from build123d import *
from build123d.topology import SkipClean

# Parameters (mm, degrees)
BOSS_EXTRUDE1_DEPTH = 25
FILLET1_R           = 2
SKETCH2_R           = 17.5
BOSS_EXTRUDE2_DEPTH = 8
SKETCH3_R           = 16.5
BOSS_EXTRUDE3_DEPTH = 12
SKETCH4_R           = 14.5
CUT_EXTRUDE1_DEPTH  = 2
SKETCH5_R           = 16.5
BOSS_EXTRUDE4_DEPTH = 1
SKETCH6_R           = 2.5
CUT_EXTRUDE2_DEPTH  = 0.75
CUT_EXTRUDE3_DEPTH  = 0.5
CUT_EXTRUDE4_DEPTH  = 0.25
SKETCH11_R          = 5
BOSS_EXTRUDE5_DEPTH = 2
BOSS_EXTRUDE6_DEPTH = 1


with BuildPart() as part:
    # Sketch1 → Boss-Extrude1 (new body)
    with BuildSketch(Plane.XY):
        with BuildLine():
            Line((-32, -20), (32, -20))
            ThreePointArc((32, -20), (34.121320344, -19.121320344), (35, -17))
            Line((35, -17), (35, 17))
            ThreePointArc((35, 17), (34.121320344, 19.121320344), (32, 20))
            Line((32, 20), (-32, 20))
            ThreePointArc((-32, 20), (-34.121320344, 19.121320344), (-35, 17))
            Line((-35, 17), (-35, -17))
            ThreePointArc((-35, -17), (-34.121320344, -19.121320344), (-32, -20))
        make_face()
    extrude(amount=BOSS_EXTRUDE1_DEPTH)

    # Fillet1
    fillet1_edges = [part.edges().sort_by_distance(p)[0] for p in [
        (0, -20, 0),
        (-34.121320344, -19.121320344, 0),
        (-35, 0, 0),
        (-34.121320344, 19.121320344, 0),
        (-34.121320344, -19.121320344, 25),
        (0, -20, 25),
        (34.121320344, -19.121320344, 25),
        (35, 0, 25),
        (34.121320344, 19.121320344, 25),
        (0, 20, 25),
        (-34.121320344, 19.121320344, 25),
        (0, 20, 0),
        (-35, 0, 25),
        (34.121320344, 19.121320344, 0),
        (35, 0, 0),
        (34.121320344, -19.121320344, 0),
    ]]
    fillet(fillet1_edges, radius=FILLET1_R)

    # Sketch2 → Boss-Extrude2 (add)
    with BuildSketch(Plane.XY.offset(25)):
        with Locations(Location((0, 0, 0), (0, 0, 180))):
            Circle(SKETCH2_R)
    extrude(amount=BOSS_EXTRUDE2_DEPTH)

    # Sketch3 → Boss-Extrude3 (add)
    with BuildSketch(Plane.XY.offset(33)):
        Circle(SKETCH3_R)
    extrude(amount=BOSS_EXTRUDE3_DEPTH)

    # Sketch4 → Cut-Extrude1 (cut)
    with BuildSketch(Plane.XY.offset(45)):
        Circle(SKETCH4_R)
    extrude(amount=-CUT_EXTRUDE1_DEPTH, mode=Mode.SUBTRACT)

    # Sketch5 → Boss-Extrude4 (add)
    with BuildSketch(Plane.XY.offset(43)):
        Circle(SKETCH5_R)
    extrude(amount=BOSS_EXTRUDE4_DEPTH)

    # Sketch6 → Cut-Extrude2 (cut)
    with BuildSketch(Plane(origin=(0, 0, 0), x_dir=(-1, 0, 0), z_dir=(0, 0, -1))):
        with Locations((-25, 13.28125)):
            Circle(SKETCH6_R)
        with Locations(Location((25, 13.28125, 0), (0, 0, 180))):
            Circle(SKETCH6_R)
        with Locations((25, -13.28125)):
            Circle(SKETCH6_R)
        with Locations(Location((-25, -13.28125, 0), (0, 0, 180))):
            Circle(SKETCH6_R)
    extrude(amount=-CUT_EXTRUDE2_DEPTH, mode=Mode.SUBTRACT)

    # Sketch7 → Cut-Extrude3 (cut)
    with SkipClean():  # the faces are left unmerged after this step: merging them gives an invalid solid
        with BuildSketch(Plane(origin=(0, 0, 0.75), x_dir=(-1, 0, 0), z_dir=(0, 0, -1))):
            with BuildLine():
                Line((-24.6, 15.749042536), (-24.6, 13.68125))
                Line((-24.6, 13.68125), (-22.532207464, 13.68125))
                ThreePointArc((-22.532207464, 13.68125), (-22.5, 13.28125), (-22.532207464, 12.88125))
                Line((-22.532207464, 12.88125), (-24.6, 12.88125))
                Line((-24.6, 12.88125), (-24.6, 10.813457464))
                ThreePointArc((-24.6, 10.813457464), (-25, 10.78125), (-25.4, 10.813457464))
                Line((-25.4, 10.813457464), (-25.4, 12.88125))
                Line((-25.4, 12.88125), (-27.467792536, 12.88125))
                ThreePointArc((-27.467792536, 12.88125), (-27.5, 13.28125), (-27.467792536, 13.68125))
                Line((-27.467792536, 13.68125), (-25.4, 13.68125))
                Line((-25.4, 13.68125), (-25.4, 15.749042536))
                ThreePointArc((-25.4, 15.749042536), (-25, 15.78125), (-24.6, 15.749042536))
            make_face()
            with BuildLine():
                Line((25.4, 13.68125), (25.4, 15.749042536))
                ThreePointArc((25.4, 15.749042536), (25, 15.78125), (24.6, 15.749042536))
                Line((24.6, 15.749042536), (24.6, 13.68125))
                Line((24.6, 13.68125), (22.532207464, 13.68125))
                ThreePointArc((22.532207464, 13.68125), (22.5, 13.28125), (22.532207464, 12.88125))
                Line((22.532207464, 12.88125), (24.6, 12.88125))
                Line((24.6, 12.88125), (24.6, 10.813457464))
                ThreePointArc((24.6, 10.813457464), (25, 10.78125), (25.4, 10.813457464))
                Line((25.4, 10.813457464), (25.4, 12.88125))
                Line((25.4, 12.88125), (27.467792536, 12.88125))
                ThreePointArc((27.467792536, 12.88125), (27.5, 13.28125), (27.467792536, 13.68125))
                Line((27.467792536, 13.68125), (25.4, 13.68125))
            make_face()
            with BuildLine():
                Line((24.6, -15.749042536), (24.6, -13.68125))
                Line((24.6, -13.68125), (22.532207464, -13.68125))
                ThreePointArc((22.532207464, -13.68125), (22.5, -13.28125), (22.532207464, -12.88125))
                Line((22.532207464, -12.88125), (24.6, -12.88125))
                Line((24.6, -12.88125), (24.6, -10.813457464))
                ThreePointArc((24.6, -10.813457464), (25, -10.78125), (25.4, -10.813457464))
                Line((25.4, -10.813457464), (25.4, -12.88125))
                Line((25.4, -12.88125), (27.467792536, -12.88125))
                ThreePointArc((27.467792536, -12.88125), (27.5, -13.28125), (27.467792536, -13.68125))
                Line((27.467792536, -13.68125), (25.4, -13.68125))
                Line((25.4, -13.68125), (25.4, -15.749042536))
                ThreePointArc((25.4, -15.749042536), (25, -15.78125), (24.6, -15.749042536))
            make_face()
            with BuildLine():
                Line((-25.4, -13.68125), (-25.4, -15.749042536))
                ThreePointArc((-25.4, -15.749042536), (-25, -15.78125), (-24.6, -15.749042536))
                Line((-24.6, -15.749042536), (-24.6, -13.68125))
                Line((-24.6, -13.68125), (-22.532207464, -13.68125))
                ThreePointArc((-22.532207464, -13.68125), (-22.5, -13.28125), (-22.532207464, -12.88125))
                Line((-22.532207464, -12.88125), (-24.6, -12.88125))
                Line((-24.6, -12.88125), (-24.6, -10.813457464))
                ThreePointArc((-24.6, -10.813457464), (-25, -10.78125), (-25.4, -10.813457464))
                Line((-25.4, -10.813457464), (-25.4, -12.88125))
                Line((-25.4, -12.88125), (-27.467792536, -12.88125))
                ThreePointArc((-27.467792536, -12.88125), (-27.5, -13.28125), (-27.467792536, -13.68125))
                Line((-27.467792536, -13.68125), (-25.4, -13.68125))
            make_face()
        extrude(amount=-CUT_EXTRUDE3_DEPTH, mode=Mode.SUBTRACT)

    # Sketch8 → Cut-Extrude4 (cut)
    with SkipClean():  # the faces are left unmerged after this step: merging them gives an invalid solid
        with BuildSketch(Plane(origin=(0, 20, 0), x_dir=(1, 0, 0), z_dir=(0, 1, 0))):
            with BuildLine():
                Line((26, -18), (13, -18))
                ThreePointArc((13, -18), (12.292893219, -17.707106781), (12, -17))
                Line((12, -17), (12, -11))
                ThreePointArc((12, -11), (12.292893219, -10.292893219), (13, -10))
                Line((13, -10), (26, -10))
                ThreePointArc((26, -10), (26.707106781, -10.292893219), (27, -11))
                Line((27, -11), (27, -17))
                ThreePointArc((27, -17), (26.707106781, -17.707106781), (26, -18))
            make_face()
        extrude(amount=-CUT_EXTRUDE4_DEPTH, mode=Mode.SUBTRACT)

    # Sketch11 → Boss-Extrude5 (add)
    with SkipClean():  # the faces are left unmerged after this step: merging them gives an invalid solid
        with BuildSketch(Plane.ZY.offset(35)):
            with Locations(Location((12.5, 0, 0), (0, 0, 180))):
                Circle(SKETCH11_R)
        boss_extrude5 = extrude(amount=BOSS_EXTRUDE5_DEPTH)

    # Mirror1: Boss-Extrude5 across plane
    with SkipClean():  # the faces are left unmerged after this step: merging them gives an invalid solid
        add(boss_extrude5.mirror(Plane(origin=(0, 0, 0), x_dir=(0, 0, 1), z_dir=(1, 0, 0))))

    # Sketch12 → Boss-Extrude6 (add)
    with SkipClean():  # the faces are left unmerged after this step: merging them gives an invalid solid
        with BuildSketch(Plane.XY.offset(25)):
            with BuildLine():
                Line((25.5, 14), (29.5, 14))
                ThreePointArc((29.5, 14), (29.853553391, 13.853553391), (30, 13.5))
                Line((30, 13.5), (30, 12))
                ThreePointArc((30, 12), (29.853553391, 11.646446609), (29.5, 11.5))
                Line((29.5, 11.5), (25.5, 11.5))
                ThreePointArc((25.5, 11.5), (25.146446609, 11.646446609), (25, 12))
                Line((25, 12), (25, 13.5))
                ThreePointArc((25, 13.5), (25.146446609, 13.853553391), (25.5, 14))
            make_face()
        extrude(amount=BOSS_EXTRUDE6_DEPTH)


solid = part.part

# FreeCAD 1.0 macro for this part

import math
import FreeCAD as App
import Part
import Sketcher

V = App.Vector
Q = App.Units.Quantity


def edges_at(feature, points):
    """Names of the edges that pass closest to the given points."""
    edges = feature.Shape.Edges
    near = lambda p: min(range(len(edges)), key=lambda i: edges[i].distToShape(Part.Vertex(*p))[0])
    return sorted({f"Edge{near(p) + 1}" for p in points})

doc = App.newDocument("Part")
body = doc.addObject("PartDesign::Body", "Body")

sketch1 = doc.addObject("Sketcher::SketchObject", "Sketch")
body.addObject(sketch1)
sketch1.AttachmentSupport = (doc.XY_Plane, [""])
sketch1.MapMode = "FlatFace"
sketch1.addGeometry(Part.LineSegment(V(-32, -20, 0), V(32, -20, 0)), False)
sketch1.addGeometry(Part.ArcOfCircle(Part.Circle(V(32, -17, 0), V(0, 0, 1), 3), math.radians(-90), math.radians(0)), False)
sketch1.addGeometry(Part.LineSegment(V(35, -17, 0), V(35, 17, 0)), False)
sketch1.addGeometry(Part.ArcOfCircle(Part.Circle(V(32, 17, 0), V(0, 0, 1), 3), math.radians(0), math.radians(90)), False)
sketch1.addGeometry(Part.LineSegment(V(32, 20, 0), V(-32, 20, 0)), False)
sketch1.addGeometry(Part.ArcOfCircle(Part.Circle(V(-32, 17, 0), V(0, 0, 1), 3), math.radians(90), math.radians(180)), False)
sketch1.addGeometry(Part.LineSegment(V(-35, 17, 0), V(-35, -17, 0)), False)
sketch1.addGeometry(Part.ArcOfCircle(Part.Circle(V(-32, -17, 0), V(0, 0, 1), 3), math.radians(180), math.radians(270)), False)
sketch1.addConstraint(Sketcher.Constraint("Tangent", 0, 2, 1, 1))
sketch1.addConstraint(Sketcher.Constraint("Tangent", 1, 2, 2, 1))
sketch1.addConstraint(Sketcher.Constraint("Tangent", 2, 2, 3, 1))
sketch1.addConstraint(Sketcher.Constraint("Tangent", 3, 2, 4, 1))
sketch1.addConstraint(Sketcher.Constraint("Tangent", 4, 2, 5, 1))
sketch1.addConstraint(Sketcher.Constraint("Tangent", 5, 2, 6, 1))
sketch1.addConstraint(Sketcher.Constraint("Tangent", 6, 2, 7, 1))
sketch1.addConstraint(Sketcher.Constraint("Tangent", 7, 2, 0, 1))
sketch1.addConstraint(Sketcher.Constraint("Horizontal", 0))
sketch1.addConstraint(Sketcher.Constraint("Vertical", 2))
sketch1.addConstraint(Sketcher.Constraint("Horizontal", 4))
sketch1.addConstraint(Sketcher.Constraint("Vertical", 6))
sketch1.addConstraint(Sketcher.Constraint("Equal", 1, 3))
sketch1.addConstraint(Sketcher.Constraint("Equal", 3, 5))
sketch1.addConstraint(Sketcher.Constraint("Equal", 5, 7))
sketch1.addConstraint(Sketcher.Constraint("Symmetric", 1, 3, 5, 3, -1, 1))
sketch1.addConstraint(Sketcher.Constraint("Radius", 1, Q("3 mm")))
sketch1.addConstraint(Sketcher.Constraint("DistanceX", 0, 1, 0, 2, Q("64 mm")))
sketch1.addConstraint(Sketcher.Constraint("DistanceY", 2, 1, 2, 2, Q("34 mm")))
pad1 = doc.addObject("PartDesign::Pad", "Pad")
body.addObject(pad1)
pad1.Profile = sketch1
pad1.Length = 25
doc.recompute()

fillet = doc.addObject("PartDesign::Fillet", "Fillet")
body.addObject(fillet)
fillet.Base = (pad1, edges_at(pad1, [
    (0, -20, 0),
    (-34.121, -19.121, 0),
    (-35, 0, 0),
    (-34.121, 19.121, 0),
    (-34.121, -19.121, 25),
    (0, -20, 25),
    (34.121, -19.121, 25),
    (35, 0, 25),
    (34.121, 19.121, 25),
    (0, 20, 25),
    (-34.121, 19.121, 25),
    (0, 20, 0),
    (-35, 0, 25),
    (34.121, 19.121, 0),
    (35, 0, 0),
    (34.121, -19.121, 0),
]))
fillet.Radius = 2

sketch2 = doc.addObject("Sketcher::SketchObject", "Sketch001")
body.addObject(sketch2)
sketch2.AttachmentSupport = (doc.XY_Plane, [""])
sketch2.MapMode = "FlatFace"
sketch2.AttachmentOffset = App.Placement(V(0, 0, 25), App.Rotation())
sketch2.addGeometry(Part.Circle(V(0, 0, 0), V(0, 0, 1), 18), False)
sketch2.addConstraint(Sketcher.Constraint("Coincident", 0, 3, -1, 1))
sketch2.addConstraint(Sketcher.Constraint("Diameter", 0, Q("35 mm")))
pad2 = doc.addObject("PartDesign::Pad", "Pad001")
body.addObject(pad2)
pad2.Profile = sketch2
pad2.Length = 8

sketch3 = doc.addObject("Sketcher::SketchObject", "Sketch002")
body.addObject(sketch3)
sketch3.AttachmentSupport = (doc.XY_Plane, [""])
sketch3.MapMode = "FlatFace"
sketch3.AttachmentOffset = App.Placement(V(0, 0, 33), App.Rotation())
sketch3.addGeometry(Part.Circle(V(0, 0, 0), V(0, 0, 1), 16), False)
sketch3.addConstraint(Sketcher.Constraint("Coincident", 0, 3, -1, 1))
sketch3.addConstraint(Sketcher.Constraint("Diameter", 0, Q("33 mm")))
pad3 = doc.addObject("PartDesign::Pad", "Pad002")
body.addObject(pad3)
pad3.Profile = sketch3
pad3.Length = 12

sketch4 = doc.addObject("Sketcher::SketchObject", "Sketch003")
body.addObject(sketch4)
sketch4.AttachmentSupport = (doc.XY_Plane, [""])
sketch4.MapMode = "FlatFace"
sketch4.AttachmentOffset = App.Placement(V(0, 0, 45), App.Rotation())
sketch4.addGeometry(Part.Circle(V(0, 0, 0), V(0, 0, 1), 14), False)
sketch4.addConstraint(Sketcher.Constraint("Coincident", 0, 3, -1, 1))
sketch4.addConstraint(Sketcher.Constraint("Diameter", 0, Q("29 mm")))
pocket1 = doc.addObject("PartDesign::Pocket", "Pocket")
body.addObject(pocket1)
pocket1.Profile = sketch4
pocket1.Length = 2

sketch5 = doc.addObject("Sketcher::SketchObject", "Sketch004")
body.addObject(sketch5)
sketch5.AttachmentSupport = (doc.XY_Plane, [""])
sketch5.MapMode = "FlatFace"
sketch5.AttachmentOffset = App.Placement(V(0, 0, 43), App.Rotation())
sketch5.addGeometry(Part.Circle(V(0, 0, 0), V(0, 0, 1), 16), False)
sketch5.addConstraint(Sketcher.Constraint("Coincident", 0, 3, -1, 1))
sketch5.addConstraint(Sketcher.Constraint("Diameter", 0, Q("33 mm")))
pad4 = doc.addObject("PartDesign::Pad", "Pad003")
body.addObject(pad4)
pad4.Profile = sketch5
pad4.Length = 1

sketch6 = doc.addObject("Sketcher::SketchObject", "Sketch005")
body.addObject(sketch6)
sketch6.AttachmentSupport = (doc.XY_Plane, [""])
sketch6.MapMode = "FlatFace"
sketch6.addGeometry(Part.Circle(V(25, 13.3, 0), V(0, 0, 1), 2.5), False)
sketch6.addGeometry(Part.Circle(V(-25, 13.3, 0), V(0, 0, 1), 2.5), False)
sketch6.addGeometry(Part.Circle(V(-25, -13.3, 0), V(0, 0, 1), 2.5), False)
sketch6.addGeometry(Part.Circle(V(25, -13.3, 0), V(0, 0, 1), 2.5), False)
sketch6.addConstraint(Sketcher.Constraint("Equal", 0, 1))
sketch6.addConstraint(Sketcher.Constraint("Equal", 1, 2))
sketch6.addConstraint(Sketcher.Constraint("Equal", 2, 3))
sketch6.addConstraint(Sketcher.Constraint("Symmetric", 0, 3, 2, 3, -1, 1))
sketch6.addConstraint(Sketcher.Constraint("Symmetric", 1, 3, 3, 3, -1, 1))
sketch6.addConstraint(Sketcher.Constraint("Symmetric", 0, 3, 1, 3, -2))
sketch6.addConstraint(Sketcher.Constraint("Diameter", 0, Q("5 mm")))
sketch6.addConstraint(Sketcher.Constraint("DistanceX", -1, 1, 0, 3, Q("25 mm")))
sketch6.addConstraint(Sketcher.Constraint("DistanceY", 2, 3, 1, 3, Q("26.5625 mm")))
pocket2 = doc.addObject("PartDesign::Pocket", "Pocket001")
body.addObject(pocket2)
pocket2.Profile = sketch6
pocket2.Length = 0.75
pocket2.Reversed = True

sketch7 = doc.addObject("Sketcher::SketchObject", "Sketch006")
body.addObject(sketch7)
sketch7.AttachmentSupport = (doc.XY_Plane, [""])
sketch7.MapMode = "FlatFace"
sketch7.AttachmentOffset = App.Placement(V(0, 0, 0.75), App.Rotation())
sketch7.addGeometry(Part.LineSegment(V(24.6, 13.7, 0), V(24.6, 15.7, 0)), False)
sketch7.addGeometry(Part.ArcOfCircle(Part.Circle(V(25, 13.3, 0), V(0, 0, 1), 2.5), math.radians(80.79), math.radians(99.21)), False)
sketch7.addGeometry(Part.LineSegment(V(25.4, 15.7, 0), V(25.4, 13.7, 0)), False)
sketch7.addGeometry(Part.LineSegment(V(25.4, 13.7, 0), V(27.5, 13.7, 0)), False)
sketch7.addGeometry(Part.ArcOfCircle(Part.Circle(V(25, 13.3, 0), V(0, 0, 1), 2.5), math.radians(-9.21), math.radians(9.21)), False)
sketch7.addGeometry(Part.LineSegment(V(27.5, 12.9, 0), V(25.4, 12.9, 0)), False)
sketch7.addGeometry(Part.LineSegment(V(25.4, 12.9, 0), V(25.4, 10.8, 0)), False)
sketch7.addGeometry(Part.ArcOfCircle(Part.Circle(V(25, 13.3, 0), V(0, 0, 1), 2.5), math.radians(-99.21), math.radians(-80.79)), False)
sketch7.addGeometry(Part.LineSegment(V(24.6, 10.8, 0), V(24.6, 12.9, 0)), False)
sketch7.addGeometry(Part.LineSegment(V(24.6, 12.9, 0), V(22.5, 12.9, 0)), False)
sketch7.addGeometry(Part.ArcOfCircle(Part.Circle(V(25, 13.3, 0), V(0, 0, 1), 2.5), math.radians(170.79), math.radians(189.21)), False)
sketch7.addGeometry(Part.LineSegment(V(22.5, 13.7, 0), V(24.6, 13.7, 0)), False)
sketch7.addGeometry(Part.LineSegment(V(-25.4, 13.7, 0), V(-25.4, 15.7, 0)), False)
sketch7.addGeometry(Part.ArcOfCircle(Part.Circle(V(-25, 13.3, 0), V(0, 0, 1), 2.5), math.radians(80.79), math.radians(99.21)), False)
sketch7.addGeometry(Part.LineSegment(V(-24.6, 15.7, 0), V(-24.6, 13.7, 0)), False)
sketch7.addGeometry(Part.LineSegment(V(-24.6, 13.7, 0), V(-22.5, 13.7, 0)), False)
sketch7.addGeometry(Part.ArcOfCircle(Part.Circle(V(-25, 13.3, 0), V(0, 0, 1), 2.5), math.radians(-9.21), math.radians(9.21)), False)
sketch7.addGeometry(Part.LineSegment(V(-22.5, 12.9, 0), V(-24.6, 12.9, 0)), False)
sketch7.addGeometry(Part.LineSegment(V(-24.6, 12.9, 0), V(-24.6, 10.8, 0)), False)
sketch7.addGeometry(Part.ArcOfCircle(Part.Circle(V(-25, 13.3, 0), V(0, 0, 1), 2.5), math.radians(-99.21), math.radians(-80.79)), False)
sketch7.addGeometry(Part.LineSegment(V(-25.4, 10.8, 0), V(-25.4, 12.9, 0)), False)
sketch7.addGeometry(Part.LineSegment(V(-25.4, 12.9, 0), V(-27.5, 12.9, 0)), False)
sketch7.addGeometry(Part.ArcOfCircle(Part.Circle(V(-25, 13.3, 0), V(0, 0, 1), 2.5), math.radians(170.79), math.radians(189.21)), False)
sketch7.addGeometry(Part.LineSegment(V(-27.5, 13.7, 0), V(-25.4, 13.7, 0)), False)
sketch7.addGeometry(Part.LineSegment(V(-24.6, -13.7, 0), V(-24.6, -15.7, 0)), False)
sketch7.addGeometry(Part.ArcOfCircle(Part.Circle(V(-25, -13.3, 0), V(0, 0, 1), 2.5), math.radians(-99.21), math.radians(-80.79)), False)
sketch7.addGeometry(Part.LineSegment(V(-25.4, -15.7, 0), V(-25.4, -13.7, 0)), False)
sketch7.addGeometry(Part.LineSegment(V(-25.4, -13.7, 0), V(-27.5, -13.7, 0)), False)
sketch7.addGeometry(Part.ArcOfCircle(Part.Circle(V(-25, -13.3, 0), V(0, 0, 1), 2.5), math.radians(170.79), math.radians(189.21)), False)
sketch7.addGeometry(Part.LineSegment(V(-27.5, -12.9, 0), V(-25.4, -12.9, 0)), False)
sketch7.addGeometry(Part.LineSegment(V(-25.4, -12.9, 0), V(-25.4, -10.8, 0)), False)
sketch7.addGeometry(Part.ArcOfCircle(Part.Circle(V(-25, -13.3, 0), V(0, 0, 1), 2.5), math.radians(80.79), math.radians(99.21)), False)
sketch7.addGeometry(Part.LineSegment(V(-24.6, -10.8, 0), V(-24.6, -12.9, 0)), False)
sketch7.addGeometry(Part.LineSegment(V(-24.6, -12.9, 0), V(-22.5, -12.9, 0)), False)
sketch7.addGeometry(Part.ArcOfCircle(Part.Circle(V(-25, -13.3, 0), V(0, 0, 1), 2.5), math.radians(-9.21), math.radians(9.21)), False)
sketch7.addGeometry(Part.LineSegment(V(-22.5, -13.7, 0), V(-24.6, -13.7, 0)), False)
sketch7.addGeometry(Part.LineSegment(V(25.4, -13.7, 0), V(25.4, -15.7, 0)), False)
sketch7.addGeometry(Part.ArcOfCircle(Part.Circle(V(25, -13.3, 0), V(0, 0, 1), 2.5), math.radians(-99.21), math.radians(-80.79)), False)
sketch7.addGeometry(Part.LineSegment(V(24.6, -15.7, 0), V(24.6, -13.7, 0)), False)
sketch7.addGeometry(Part.LineSegment(V(24.6, -13.7, 0), V(22.5, -13.7, 0)), False)
sketch7.addGeometry(Part.ArcOfCircle(Part.Circle(V(25, -13.3, 0), V(0, 0, 1), 2.5), math.radians(170.79), math.radians(189.21)), False)
sketch7.addGeometry(Part.LineSegment(V(22.5, -12.9, 0), V(24.6, -12.9, 0)), False)
sketch7.addGeometry(Part.LineSegment(V(24.6, -12.9, 0), V(24.6, -10.8, 0)), False)
sketch7.addGeometry(Part.ArcOfCircle(Part.Circle(V(25, -13.3, 0), V(0, 0, 1), 2.5), math.radians(80.79), math.radians(99.21)), False)
sketch7.addGeometry(Part.LineSegment(V(25.4, -10.8, 0), V(25.4, -12.9, 0)), False)
sketch7.addGeometry(Part.LineSegment(V(25.4, -12.9, 0), V(27.5, -12.9, 0)), False)
sketch7.addGeometry(Part.ArcOfCircle(Part.Circle(V(25, -13.3, 0), V(0, 0, 1), 2.5), math.radians(-9.21), math.radians(9.21)), False)
sketch7.addGeometry(Part.LineSegment(V(27.5, -13.7, 0), V(25.4, -13.7, 0)), False)
sketch7.addConstraint(Sketcher.Constraint("Coincident", 0, 2, 1, 2))
sketch7.addConstraint(Sketcher.Constraint("Coincident", 1, 1, 2, 1))
sketch7.addConstraint(Sketcher.Constraint("Coincident", 2, 2, 3, 1))
sketch7.addConstraint(Sketcher.Constraint("Coincident", 3, 2, 4, 2))
sketch7.addConstraint(Sketcher.Constraint("Coincident", 4, 1, 5, 1))
sketch7.addConstraint(Sketcher.Constraint("Coincident", 5, 2, 6, 1))
sketch7.addConstraint(Sketcher.Constraint("Coincident", 6, 2, 7, 2))
sketch7.addConstraint(Sketcher.Constraint("Coincident", 7, 1, 8, 1))
sketch7.addConstraint(Sketcher.Constraint("Coincident", 8, 2, 9, 1))
sketch7.addConstraint(Sketcher.Constraint("Coincident", 9, 2, 10, 2))
sketch7.addConstraint(Sketcher.Constraint("Coincident", 10, 1, 11, 1))
sketch7.addConstraint(Sketcher.Constraint("Coincident", 11, 2, 0, 1))
sketch7.addConstraint(Sketcher.Constraint("Coincident", 12, 2, 13, 2))
sketch7.addConstraint(Sketcher.Constraint("Coincident", 13, 1, 14, 1))
sketch7.addConstraint(Sketcher.Constraint("Coincident", 14, 2, 15, 1))
sketch7.addConstraint(Sketcher.Constraint("Coincident", 15, 2, 16, 2))
sketch7.addConstraint(Sketcher.Constraint("Coincident", 16, 1, 17, 1))
sketch7.addConstraint(Sketcher.Constraint("Coincident", 17, 2, 18, 1))
sketch7.addConstraint(Sketcher.Constraint("Coincident", 18, 2, 19, 2))
sketch7.addConstraint(Sketcher.Constraint("Coincident", 19, 1, 20, 1))
sketch7.addConstraint(Sketcher.Constraint("Coincident", 20, 2, 21, 1))
sketch7.addConstraint(Sketcher.Constraint("Coincident", 21, 2, 22, 2))
sketch7.addConstraint(Sketcher.Constraint("Coincident", 22, 1, 23, 1))
sketch7.addConstraint(Sketcher.Constraint("Coincident", 23, 2, 12, 1))
sketch7.addConstraint(Sketcher.Constraint("Coincident", 24, 2, 25, 2))
sketch7.addConstraint(Sketcher.Constraint("Coincident", 25, 1, 26, 1))
sketch7.addConstraint(Sketcher.Constraint("Coincident", 26, 2, 27, 1))
sketch7.addConstraint(Sketcher.Constraint("Coincident", 27, 2, 28, 2))
sketch7.addConstraint(Sketcher.Constraint("Coincident", 28, 1, 29, 1))
sketch7.addConstraint(Sketcher.Constraint("Coincident", 29, 2, 30, 1))
sketch7.addConstraint(Sketcher.Constraint("Coincident", 30, 2, 31, 2))
sketch7.addConstraint(Sketcher.Constraint("Coincident", 31, 1, 32, 1))
sketch7.addConstraint(Sketcher.Constraint("Coincident", 32, 2, 33, 1))
sketch7.addConstraint(Sketcher.Constraint("Coincident", 33, 2, 34, 2))
sketch7.addConstraint(Sketcher.Constraint("Coincident", 34, 1, 35, 1))
sketch7.addConstraint(Sketcher.Constraint("Coincident", 35, 2, 24, 1))
sketch7.addConstraint(Sketcher.Constraint("Coincident", 36, 2, 37, 2))
sketch7.addConstraint(Sketcher.Constraint("Coincident", 37, 1, 38, 1))
sketch7.addConstraint(Sketcher.Constraint("Coincident", 38, 2, 39, 1))
sketch7.addConstraint(Sketcher.Constraint("Coincident", 39, 2, 40, 2))
sketch7.addConstraint(Sketcher.Constraint("Coincident", 40, 1, 41, 1))
sketch7.addConstraint(Sketcher.Constraint("Coincident", 41, 2, 42, 1))
sketch7.addConstraint(Sketcher.Constraint("Coincident", 42, 2, 43, 2))
sketch7.addConstraint(Sketcher.Constraint("Coincident", 43, 1, 44, 1))
sketch7.addConstraint(Sketcher.Constraint("Coincident", 44, 2, 45, 1))
sketch7.addConstraint(Sketcher.Constraint("Coincident", 45, 2, 46, 2))
sketch7.addConstraint(Sketcher.Constraint("Coincident", 46, 1, 47, 1))
sketch7.addConstraint(Sketcher.Constraint("Coincident", 47, 2, 36, 1))
sketch7.addConstraint(Sketcher.Constraint("Vertical", 0))
sketch7.addConstraint(Sketcher.Constraint("Vertical", 2))
sketch7.addConstraint(Sketcher.Constraint("Horizontal", 3))
sketch7.addConstraint(Sketcher.Constraint("Horizontal", 5))
sketch7.addConstraint(Sketcher.Constraint("Vertical", 6))
sketch7.addConstraint(Sketcher.Constraint("Vertical", 8))
sketch7.addConstraint(Sketcher.Constraint("Horizontal", 9))
sketch7.addConstraint(Sketcher.Constraint("Horizontal", 11))
sketch7.addConstraint(Sketcher.Constraint("Vertical", 12))
sketch7.addConstraint(Sketcher.Constraint("Vertical", 14))
sketch7.addConstraint(Sketcher.Constraint("Horizontal", 15))
sketch7.addConstraint(Sketcher.Constraint("Horizontal", 17))
sketch7.addConstraint(Sketcher.Constraint("Vertical", 18))
sketch7.addConstraint(Sketcher.Constraint("Vertical", 20))
sketch7.addConstraint(Sketcher.Constraint("Horizontal", 21))
sketch7.addConstraint(Sketcher.Constraint("Horizontal", 23))
sketch7.addConstraint(Sketcher.Constraint("Vertical", 24))
sketch7.addConstraint(Sketcher.Constraint("Vertical", 26))
sketch7.addConstraint(Sketcher.Constraint("Horizontal", 27))
sketch7.addConstraint(Sketcher.Constraint("Horizontal", 29))
sketch7.addConstraint(Sketcher.Constraint("Vertical", 30))
sketch7.addConstraint(Sketcher.Constraint("Vertical", 32))
sketch7.addConstraint(Sketcher.Constraint("Horizontal", 33))
sketch7.addConstraint(Sketcher.Constraint("Horizontal", 35))
sketch7.addConstraint(Sketcher.Constraint("Vertical", 36))
sketch7.addConstraint(Sketcher.Constraint("Vertical", 38))
sketch7.addConstraint(Sketcher.Constraint("Horizontal", 39))
sketch7.addConstraint(Sketcher.Constraint("Horizontal", 41))
sketch7.addConstraint(Sketcher.Constraint("Vertical", 42))
sketch7.addConstraint(Sketcher.Constraint("Vertical", 44))
sketch7.addConstraint(Sketcher.Constraint("Horizontal", 45))
sketch7.addConstraint(Sketcher.Constraint("Horizontal", 47))
sketch7.addConstraint(Sketcher.Constraint("Coincident", 4, 3, 1, 3))
sketch7.addConstraint(Sketcher.Constraint("Coincident", 7, 3, 1, 3))
sketch7.addConstraint(Sketcher.Constraint("Coincident", 10, 3, 1, 3))
sketch7.addConstraint(Sketcher.Constraint("Coincident", 16, 3, 13, 3))
sketch7.addConstraint(Sketcher.Constraint("Coincident", 19, 3, 13, 3))
sketch7.addConstraint(Sketcher.Constraint("Coincident", 22, 3, 13, 3))
sketch7.addConstraint(Sketcher.Constraint("Coincident", 28, 3, 25, 3))
sketch7.addConstraint(Sketcher.Constraint("Coincident", 31, 3, 25, 3))
sketch7.addConstraint(Sketcher.Constraint("Coincident", 34, 3, 25, 3))
sketch7.addConstraint(Sketcher.Constraint("Coincident", 40, 3, 37, 3))
sketch7.addConstraint(Sketcher.Constraint("Coincident", 43, 3, 37, 3))
sketch7.addConstraint(Sketcher.Constraint("Coincident", 46, 3, 37, 3))
sketch7.addConstraint(Sketcher.Constraint("Equal", 1, 4))
sketch7.addConstraint(Sketcher.Constraint("Equal", 4, 7))
sketch7.addConstraint(Sketcher.Constraint("Equal", 7, 10))
sketch7.addConstraint(Sketcher.Constraint("Equal", 10, 13))
sketch7.addConstraint(Sketcher.Constraint("Equal", 13, 16))
sketch7.addConstraint(Sketcher.Constraint("Equal", 16, 19))
sketch7.addConstraint(Sketcher.Constraint("Equal", 19, 22))
sketch7.addConstraint(Sketcher.Constraint("Equal", 22, 25))
sketch7.addConstraint(Sketcher.Constraint("Equal", 25, 28))
sketch7.addConstraint(Sketcher.Constraint("Equal", 28, 31))
sketch7.addConstraint(Sketcher.Constraint("Equal", 31, 34))
sketch7.addConstraint(Sketcher.Constraint("Equal", 34, 37))
sketch7.addConstraint(Sketcher.Constraint("Equal", 37, 40))
sketch7.addConstraint(Sketcher.Constraint("Equal", 40, 43))
sketch7.addConstraint(Sketcher.Constraint("Equal", 43, 46))
sketch7.addConstraint(Sketcher.Constraint("Symmetric", 1, 3, 25, 3, -1, 1))
sketch7.addConstraint(Sketcher.Constraint("Symmetric", 13, 3, 37, 3, -1, 1))
sketch7.addConstraint(Sketcher.Constraint("Symmetric", 2, 2, 26, 2, -1, 1))
sketch7.addConstraint(Sketcher.Constraint("Symmetric", 5, 2, 29, 2, -1, 1))
sketch7.addConstraint(Sketcher.Constraint("Symmetric", 8, 2, 32, 2, -1, 1))
sketch7.addConstraint(Sketcher.Constraint("Symmetric", 11, 2, 35, 2, -1, 1))
sketch7.addConstraint(Sketcher.Constraint("Symmetric", 14, 2, 38, 2, -1, 1))
sketch7.addConstraint(Sketcher.Constraint("Symmetric", 17, 2, 41, 2, -1, 1))
sketch7.addConstraint(Sketcher.Constraint("Symmetric", 20, 2, 44, 2, -1, 1))
sketch7.addConstraint(Sketcher.Constraint("Symmetric", 23, 2, 47, 2, -1, 1))
sketch7.addConstraint(Sketcher.Constraint("Symmetric", 1, 3, 13, 3, -2))
sketch7.addConstraint(Sketcher.Constraint("Symmetric", 11, 2, 14, 2, -2))
sketch7.addConstraint(Sketcher.Constraint("Symmetric", 8, 2, 17, 2, -2))
sketch7.addConstraint(Sketcher.Constraint("Symmetric", 5, 2, 20, 2, -2))
sketch7.addConstraint(Sketcher.Constraint("Symmetric", 2, 2, 23, 2, -2))
sketch7.addConstraint(Sketcher.Constraint("Horizontal", 0, 2, 1, 1))
sketch7.addConstraint(Sketcher.Constraint("Horizontal", 6, 2, 7, 1))
sketch7.addConstraint(Sketcher.Constraint("Horizontal", 5, 2, 8, 2))
sketch7.addConstraint(Sketcher.Constraint("Horizontal", 3, 2, 10, 1))
sketch7.addConstraint(Sketcher.Constraint("Vertical", 3, 2, 4, 1))
sketch7.addConstraint(Sketcher.Constraint("Vertical", 2, 2, 5, 2))
sketch7.addConstraint(Sketcher.Constraint("Equal", 47, 0))
sketch7.addConstraint(Sketcher.Constraint("Radius", 1, Q("2.5 mm")))
sketch7.addConstraint(Sketcher.Constraint("DistanceX", -1, 1, 1, 3, Q("25 mm")))
sketch7.addConstraint(Sketcher.Constraint("DistanceX", -1, 1, 0, 2, Q("24.6 mm")))
sketch7.addConstraint(Sketcher.Constraint("DistanceY", -1, 1, 1, 3, Q("13.28125 mm")))
pocket3 = doc.addObject("PartDesign::Pocket", "Pocket002")
body.addObject(pocket3)
pocket3.Profile = sketch7
pocket3.Length = 0.5
pocket3.Reversed = True

sketch8 = doc.addObject("Sketcher::SketchObject", "Sketch007")
body.addObject(sketch8)
sketch8.AttachmentSupport = (doc.XZ_Plane, [""])
sketch8.MapMode = "FlatFace"
sketch8.AttachmentOffset = App.Placement(V(0, 0, -20), App.Rotation())
sketch8.addGeometry(Part.LineSegment(V(13, 18, 0), V(26, 18, 0)), False)
sketch8.addGeometry(Part.ArcOfCircle(Part.Circle(V(26, 17, 0), V(0, 0, 1), 1), math.radians(0), math.radians(90)), False)
sketch8.addGeometry(Part.LineSegment(V(27, 17, 0), V(27, 11, 0)), False)
sketch8.addGeometry(Part.ArcOfCircle(Part.Circle(V(26, 11, 0), V(0, 0, 1), 1), math.radians(-90), math.radians(0)), False)
sketch8.addGeometry(Part.LineSegment(V(26, 10, 0), V(13, 10, 0)), False)
sketch8.addGeometry(Part.ArcOfCircle(Part.Circle(V(13, 11, 0), V(0, 0, 1), 1), math.radians(-180), math.radians(-90)), False)
sketch8.addGeometry(Part.LineSegment(V(12, 11, 0), V(12, 17, 0)), False)
sketch8.addGeometry(Part.ArcOfCircle(Part.Circle(V(13, 17, 0), V(0, 0, 1), 1), math.radians(90), math.radians(180)), False)
sketch8.addConstraint(Sketcher.Constraint("Tangent", 0, 2, 1, 2))
sketch8.addConstraint(Sketcher.Constraint("Tangent", 1, 1, 2, 1))
sketch8.addConstraint(Sketcher.Constraint("Tangent", 2, 2, 3, 2))
sketch8.addConstraint(Sketcher.Constraint("Tangent", 3, 1, 4, 1))
sketch8.addConstraint(Sketcher.Constraint("Tangent", 4, 2, 5, 2))
sketch8.addConstraint(Sketcher.Constraint("Tangent", 5, 1, 6, 1))
sketch8.addConstraint(Sketcher.Constraint("Tangent", 6, 2, 7, 2))
sketch8.addConstraint(Sketcher.Constraint("Tangent", 7, 1, 0, 1))
sketch8.addConstraint(Sketcher.Constraint("Horizontal", 0))
sketch8.addConstraint(Sketcher.Constraint("Vertical", 2))
sketch8.addConstraint(Sketcher.Constraint("Horizontal", 4))
sketch8.addConstraint(Sketcher.Constraint("Vertical", 6))
sketch8.addConstraint(Sketcher.Constraint("Equal", 1, 3))
sketch8.addConstraint(Sketcher.Constraint("Equal", 3, 5))
sketch8.addConstraint(Sketcher.Constraint("Equal", 5, 7))
sketch8.addConstraint(Sketcher.Constraint("Radius", 1, Q("1 mm")))
sketch8.addConstraint(Sketcher.Constraint("DistanceX", 0, 1, 0, 2, Q("13 mm")))
sketch8.addConstraint(Sketcher.Constraint("DistanceY", 2, 2, 2, 1, Q("6 mm")))
sketch8.addConstraint(Sketcher.Constraint("DistanceX", -1, 1, 1, 3, Q("26 mm")))
sketch8.addConstraint(Sketcher.Constraint("DistanceY", -1, 1, 1, 3, Q("17 mm")))
pocket4 = doc.addObject("PartDesign::Pocket", "Pocket003")
body.addObject(pocket4)
pocket4.Profile = sketch8
pocket4.Length = 0.25
pocket4.Reversed = True

sketch9 = doc.addObject("Sketcher::SketchObject", "Sketch008")
body.addObject(sketch9)
sketch9.AttachmentSupport = (doc.YZ_Plane, [""])
sketch9.MapMode = "FlatFace"
sketch9.AttachmentOffset = App.Placement(V(0, 0, -35), App.Rotation())
sketch9.addGeometry(Part.Circle(V(0, 12, 0), V(0, 0, 1), 5), False)
sketch9.addConstraint(Sketcher.Constraint("PointOnObject", 0, 3, -2))
sketch9.addConstraint(Sketcher.Constraint("Diameter", 0, Q("10 mm")))
sketch9.addConstraint(Sketcher.Constraint("DistanceY", -1, 1, 0, 3, Q("12.5 mm")))
pad5 = doc.addObject("PartDesign::Pad", "Pad004")
body.addObject(pad5)
pad5.Profile = sketch9
pad5.Length = 2
pad5.Reversed = True
doc.recompute()

mirrored = doc.addObject("PartDesign::Mirrored", "Mirrored")
body.addObject(mirrored)
mirrored.Originals = [pad5]
mirrored.MirrorPlane = (doc.YZ_Plane, [""])
body.Tip = mirrored

sketch10 = doc.addObject("Sketcher::SketchObject", "Sketch009")
body.addObject(sketch10)
sketch10.AttachmentSupport = (doc.XY_Plane, [""])
sketch10.MapMode = "FlatFace"
sketch10.AttachmentOffset = App.Placement(V(0, 0, 25), App.Rotation())
sketch10.addGeometry(Part.LineSegment(V(29.5, 14, 0), V(25.5, 14, 0)), False)
sketch10.addGeometry(Part.ArcOfCircle(Part.Circle(V(25.5, 13.5, 0), V(0, 0, 1), 0.5), math.radians(90), math.radians(180)), False)
sketch10.addGeometry(Part.LineSegment(V(25, 13.5, 0), V(25, 12, 0)), False)
sketch10.addGeometry(Part.ArcOfCircle(Part.Circle(V(25.5, 12, 0), V(0, 0, 1), 0.5), math.radians(180), math.radians(270)), False)
sketch10.addGeometry(Part.LineSegment(V(25.5, 11.5, 0), V(29.5, 11.5, 0)), False)
sketch10.addGeometry(Part.ArcOfCircle(Part.Circle(V(29.5, 12, 0), V(0, 0, 1), 0.5), math.radians(-90), math.radians(0)), False)
sketch10.addGeometry(Part.LineSegment(V(30, 12, 0), V(30, 13.5, 0)), False)
sketch10.addGeometry(Part.ArcOfCircle(Part.Circle(V(29.5, 13.5, 0), V(0, 0, 1), 0.5), math.radians(0), math.radians(90)), False)
sketch10.addConstraint(Sketcher.Constraint("Tangent", 0, 2, 1, 1))
sketch10.addConstraint(Sketcher.Constraint("Tangent", 1, 2, 2, 1))
sketch10.addConstraint(Sketcher.Constraint("Tangent", 2, 2, 3, 1))
sketch10.addConstraint(Sketcher.Constraint("Tangent", 3, 2, 4, 1))
sketch10.addConstraint(Sketcher.Constraint("Tangent", 4, 2, 5, 1))
sketch10.addConstraint(Sketcher.Constraint("Tangent", 5, 2, 6, 1))
sketch10.addConstraint(Sketcher.Constraint("Tangent", 6, 2, 7, 1))
sketch10.addConstraint(Sketcher.Constraint("Tangent", 7, 2, 0, 1))
sketch10.addConstraint(Sketcher.Constraint("Horizontal", 0))
sketch10.addConstraint(Sketcher.Constraint("Vertical", 2))
sketch10.addConstraint(Sketcher.Constraint("Horizontal", 4))
sketch10.addConstraint(Sketcher.Constraint("Vertical", 6))
sketch10.addConstraint(Sketcher.Constraint("Equal", 1, 3))
sketch10.addConstraint(Sketcher.Constraint("Equal", 3, 5))
sketch10.addConstraint(Sketcher.Constraint("Equal", 5, 7))
sketch10.addConstraint(Sketcher.Constraint("Radius", 1, Q("0.5 mm")))
sketch10.addConstraint(Sketcher.Constraint("DistanceX", 0, 2, 0, 1, Q("4 mm")))
sketch10.addConstraint(Sketcher.Constraint("DistanceY", 2, 2, 2, 1, Q("1.5 mm")))
sketch10.addConstraint(Sketcher.Constraint("DistanceY", -1, 1, 3, 3, Q("12 mm")))
sketch10.addConstraint(Sketcher.Constraint("DistanceX", -1, 1, 1, 2, Q("25 mm")))
pad6 = doc.addObject("PartDesign::Pad", "Pad005")
body.addObject(pad6)
pad6.Profile = sketch10
pad6.Length = 1

doc.recompute()
